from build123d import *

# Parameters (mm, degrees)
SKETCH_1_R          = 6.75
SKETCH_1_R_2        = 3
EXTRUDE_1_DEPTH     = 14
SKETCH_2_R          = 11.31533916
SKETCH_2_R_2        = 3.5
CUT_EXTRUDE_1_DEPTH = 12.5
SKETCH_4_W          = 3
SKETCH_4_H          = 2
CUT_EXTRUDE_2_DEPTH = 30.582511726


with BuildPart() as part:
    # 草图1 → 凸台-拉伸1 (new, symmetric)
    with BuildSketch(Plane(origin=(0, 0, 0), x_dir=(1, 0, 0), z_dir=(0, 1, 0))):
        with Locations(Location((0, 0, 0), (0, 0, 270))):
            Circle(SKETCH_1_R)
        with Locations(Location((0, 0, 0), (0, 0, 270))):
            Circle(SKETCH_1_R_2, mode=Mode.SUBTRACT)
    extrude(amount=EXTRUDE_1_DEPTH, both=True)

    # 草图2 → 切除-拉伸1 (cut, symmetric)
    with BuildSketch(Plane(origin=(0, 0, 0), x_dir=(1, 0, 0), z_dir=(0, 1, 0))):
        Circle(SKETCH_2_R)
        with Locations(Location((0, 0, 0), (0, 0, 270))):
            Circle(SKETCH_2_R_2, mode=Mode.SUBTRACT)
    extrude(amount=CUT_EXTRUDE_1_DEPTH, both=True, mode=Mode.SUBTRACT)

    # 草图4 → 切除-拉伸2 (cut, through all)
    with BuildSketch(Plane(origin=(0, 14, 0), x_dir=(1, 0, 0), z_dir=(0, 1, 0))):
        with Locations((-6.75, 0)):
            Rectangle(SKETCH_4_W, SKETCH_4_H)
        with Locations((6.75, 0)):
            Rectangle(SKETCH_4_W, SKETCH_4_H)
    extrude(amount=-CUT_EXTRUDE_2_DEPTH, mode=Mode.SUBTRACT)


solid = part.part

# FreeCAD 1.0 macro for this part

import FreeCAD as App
import Part
import Sketcher

V = App.Vector
Q = App.Units.Quantity

doc = App.newDocument("Part")
params = doc.addObject("Spreadsheet::Sheet", "Params")
for row, (alias, value) in enumerate([
    ("sketch1_diameter", "6 mm"),
    ("sketch1_diameter2", "13.5 mm"),
    ("pad1_length", "28 mm"),
    ("sketch2_diameter", "7 mm"),
    ("pocket1_length", "25 mm"),
    ("sketch3_width", "3 mm"),
    ("sketch3_height", "2 mm"),
], start=1):
    params.set(f"A{row}", alias)
    params.set(f"B{row}", "=" + value)
    params.setAlias(f"B{row}", alias)

body = doc.addObject("PartDesign::Body", "Body")

# Sketch on XZ plane
sketch1 = body.newObject("Sketcher::SketchObject", "Sketch")
sketch1.AttachmentSupport = (doc.getObject("XZ_Plane"), [""])
sketch1.MapMode = "FlatFace"
sketch1.addGeometry(Part.Circle(V(0, 0, 0), V(0, 0, 1), 6.75), False)
sketch1.addGeometry(Part.Circle(V(0, 0, 0), V(0, 0, 1), 3), False)
sketch1.addConstraint(Sketcher.Constraint("Coincident", 0, 3, -1, 1))
sketch1.addConstraint(Sketcher.Constraint("Coincident", 1, 3, -1, 1))
sketch1.addConstraint(Sketcher.Constraint("Diameter", 1, Q("6 mm")))
sketch1.addConstraint(Sketcher.Constraint("Diameter", 0, Q("13.5 mm")))
sketch1.setExpression("Constraints[2]", "Params.sketch1_diameter")
sketch1.setExpression("Constraints[3]", "Params.sketch1_diameter2")
pad1 = body.newObject("PartDesign::Pad", "Pad")
pad1.Profile = sketch1
pad1.setExpression("Length", "Params.pad1_length")
pad1.Midplane = True

# Sketch on XZ plane
sketch2 = body.newObject("Sketcher::SketchObject", "Sketch001")
sketch2.AttachmentSupport = (doc.getObject("XZ_Plane"), [""])
sketch2.MapMode = "FlatFace"
sketch2.addGeometry(Part.Circle(V(0, 0, 0), V(0, 0, 1), 11.315339), False)
sketch2.addGeometry(Part.Circle(V(0, 0, 0), V(0, 0, 1), 3.5), False)
sketch2.addConstraint(Sketcher.Constraint("Coincident", 0, 3, -1, 1))
sketch2.addConstraint(Sketcher.Constraint("Coincident", 1, 3, -1, 1))
sketch2.addConstraint(Sketcher.Constraint("Diameter", 1, Q("7 mm")))
sketch2.addConstraint(Sketcher.Constraint("Diameter", 0, Q("22.630678 mm")))
sketch2.setExpression("Constraints[2]", "Params.sketch2_diameter")
pocket1 = body.newObject("PartDesign::Pocket", "Pocket")
pocket1.Profile = sketch2
pocket1.setExpression("Length", "Params.pocket1_length")
pocket1.Midplane = True

# Sketch on XZ plane
sketch3 = body.newObject("Sketcher::SketchObject", "Sketch002")
sketch3.AttachmentSupport = (doc.getObject("XZ_Plane"), [""])
sketch3.MapMode = "FlatFace"
sketch3.AttachmentOffset = App.Placement(V(0, 0, -14), App.Rotation())
sketch3.addGeometry(Part.LineSegment(V(-8.25, -1, 0), V(-8.25, 1, 0)), False)
sketch3.addGeometry(Part.LineSegment(V(-8.25, 1, 0), V(-5.25, 1, 0)), False)
sketch3.addGeometry(Part.LineSegment(V(-5.25, 1, 0), V(-5.25, -1, 0)), False)
sketch3.addGeometry(Part.LineSegment(V(-5.25, -1, 0), V(-8.25, -1, 0)), False)
sketch3.addGeometry(Part.LineSegment(V(5.25, -1, 0), V(5.25, 1, 0)), False)
sketch3.addGeometry(Part.LineSegment(V(5.25, 1, 0), V(8.25, 1, 0)), False)
sketch3.addGeometry(Part.LineSegment(V(8.25, 1, 0), V(8.25, -1, 0)), False)
sketch3.addGeometry(Part.LineSegment(V(8.25, -1, 0), V(5.25, -1, 0)), False)
sketch3.addConstraint(Sketcher.Constraint("Coincident", 0, 2, 1, 1))
sketch3.addConstraint(Sketcher.Constraint("Coincident", 1, 2, 2, 1))
sketch3.addConstraint(Sketcher.Constraint("Coincident", 2, 2, 3, 1))
sketch3.addConstraint(Sketcher.Constraint("Coincident", 3, 2, 0, 1))
sketch3.addConstraint(Sketcher.Constraint("Coincident", 4, 2, 5, 1))
sketch3.addConstraint(Sketcher.Constraint("Coincident", 5, 2, 6, 1))
sketch3.addConstraint(Sketcher.Constraint("Coincident", 6, 2, 7, 1))
sketch3.addConstraint(Sketcher.Constraint("Coincident", 7, 2, 4, 1))
sketch3.addConstraint(Sketcher.Constraint("Vertical", 0))
sketch3.addConstraint(Sketcher.Constraint("Horizontal", 1))
sketch3.addConstraint(Sketcher.Constraint("Vertical", 2))
sketch3.addConstraint(Sketcher.Constraint("Horizontal", 3))
sketch3.addConstraint(Sketcher.Constraint("Vertical", 4))
sketch3.addConstraint(Sketcher.Constraint("Horizontal", 5))
sketch3.addConstraint(Sketcher.Constraint("Vertical", 6))
sketch3.addConstraint(Sketcher.Constraint("Horizontal", 7))
sketch3.addConstraint(Sketcher.Constraint("Symmetric", 2, 2, 4, 2, -1, 1))
sketch3.addConstraint(Sketcher.Constraint("Symmetric", 0, 2, 6, 2, -1, 1))
sketch3.addConstraint(Sketcher.Constraint("Horizontal", 1, 2, 4, 2))
sketch3.addConstraint(Sketcher.Constraint("DistanceX", 1, 1, 1, 2, Q("3 mm")))
sketch3.addConstraint(Sketcher.Constraint("DistanceY", 0, 1, 0, 2, Q("2 mm")))
sketch3.addConstraint(Sketcher.Constraint("DistanceX", 1, 2, 4, 2, Q("10.5 mm")))
sketch3.setExpression("Constraints[19]", "Params.sketch3_width")
sketch3.setExpression("Constraints[20]", "Params.sketch3_height")
pocket2 = body.newObject("PartDesign::Pocket", "Pocket001")
pocket2.Profile = sketch3
pocket2.Type = "ThroughAll"
pocket2.Reversed = True

doc.recompute()
